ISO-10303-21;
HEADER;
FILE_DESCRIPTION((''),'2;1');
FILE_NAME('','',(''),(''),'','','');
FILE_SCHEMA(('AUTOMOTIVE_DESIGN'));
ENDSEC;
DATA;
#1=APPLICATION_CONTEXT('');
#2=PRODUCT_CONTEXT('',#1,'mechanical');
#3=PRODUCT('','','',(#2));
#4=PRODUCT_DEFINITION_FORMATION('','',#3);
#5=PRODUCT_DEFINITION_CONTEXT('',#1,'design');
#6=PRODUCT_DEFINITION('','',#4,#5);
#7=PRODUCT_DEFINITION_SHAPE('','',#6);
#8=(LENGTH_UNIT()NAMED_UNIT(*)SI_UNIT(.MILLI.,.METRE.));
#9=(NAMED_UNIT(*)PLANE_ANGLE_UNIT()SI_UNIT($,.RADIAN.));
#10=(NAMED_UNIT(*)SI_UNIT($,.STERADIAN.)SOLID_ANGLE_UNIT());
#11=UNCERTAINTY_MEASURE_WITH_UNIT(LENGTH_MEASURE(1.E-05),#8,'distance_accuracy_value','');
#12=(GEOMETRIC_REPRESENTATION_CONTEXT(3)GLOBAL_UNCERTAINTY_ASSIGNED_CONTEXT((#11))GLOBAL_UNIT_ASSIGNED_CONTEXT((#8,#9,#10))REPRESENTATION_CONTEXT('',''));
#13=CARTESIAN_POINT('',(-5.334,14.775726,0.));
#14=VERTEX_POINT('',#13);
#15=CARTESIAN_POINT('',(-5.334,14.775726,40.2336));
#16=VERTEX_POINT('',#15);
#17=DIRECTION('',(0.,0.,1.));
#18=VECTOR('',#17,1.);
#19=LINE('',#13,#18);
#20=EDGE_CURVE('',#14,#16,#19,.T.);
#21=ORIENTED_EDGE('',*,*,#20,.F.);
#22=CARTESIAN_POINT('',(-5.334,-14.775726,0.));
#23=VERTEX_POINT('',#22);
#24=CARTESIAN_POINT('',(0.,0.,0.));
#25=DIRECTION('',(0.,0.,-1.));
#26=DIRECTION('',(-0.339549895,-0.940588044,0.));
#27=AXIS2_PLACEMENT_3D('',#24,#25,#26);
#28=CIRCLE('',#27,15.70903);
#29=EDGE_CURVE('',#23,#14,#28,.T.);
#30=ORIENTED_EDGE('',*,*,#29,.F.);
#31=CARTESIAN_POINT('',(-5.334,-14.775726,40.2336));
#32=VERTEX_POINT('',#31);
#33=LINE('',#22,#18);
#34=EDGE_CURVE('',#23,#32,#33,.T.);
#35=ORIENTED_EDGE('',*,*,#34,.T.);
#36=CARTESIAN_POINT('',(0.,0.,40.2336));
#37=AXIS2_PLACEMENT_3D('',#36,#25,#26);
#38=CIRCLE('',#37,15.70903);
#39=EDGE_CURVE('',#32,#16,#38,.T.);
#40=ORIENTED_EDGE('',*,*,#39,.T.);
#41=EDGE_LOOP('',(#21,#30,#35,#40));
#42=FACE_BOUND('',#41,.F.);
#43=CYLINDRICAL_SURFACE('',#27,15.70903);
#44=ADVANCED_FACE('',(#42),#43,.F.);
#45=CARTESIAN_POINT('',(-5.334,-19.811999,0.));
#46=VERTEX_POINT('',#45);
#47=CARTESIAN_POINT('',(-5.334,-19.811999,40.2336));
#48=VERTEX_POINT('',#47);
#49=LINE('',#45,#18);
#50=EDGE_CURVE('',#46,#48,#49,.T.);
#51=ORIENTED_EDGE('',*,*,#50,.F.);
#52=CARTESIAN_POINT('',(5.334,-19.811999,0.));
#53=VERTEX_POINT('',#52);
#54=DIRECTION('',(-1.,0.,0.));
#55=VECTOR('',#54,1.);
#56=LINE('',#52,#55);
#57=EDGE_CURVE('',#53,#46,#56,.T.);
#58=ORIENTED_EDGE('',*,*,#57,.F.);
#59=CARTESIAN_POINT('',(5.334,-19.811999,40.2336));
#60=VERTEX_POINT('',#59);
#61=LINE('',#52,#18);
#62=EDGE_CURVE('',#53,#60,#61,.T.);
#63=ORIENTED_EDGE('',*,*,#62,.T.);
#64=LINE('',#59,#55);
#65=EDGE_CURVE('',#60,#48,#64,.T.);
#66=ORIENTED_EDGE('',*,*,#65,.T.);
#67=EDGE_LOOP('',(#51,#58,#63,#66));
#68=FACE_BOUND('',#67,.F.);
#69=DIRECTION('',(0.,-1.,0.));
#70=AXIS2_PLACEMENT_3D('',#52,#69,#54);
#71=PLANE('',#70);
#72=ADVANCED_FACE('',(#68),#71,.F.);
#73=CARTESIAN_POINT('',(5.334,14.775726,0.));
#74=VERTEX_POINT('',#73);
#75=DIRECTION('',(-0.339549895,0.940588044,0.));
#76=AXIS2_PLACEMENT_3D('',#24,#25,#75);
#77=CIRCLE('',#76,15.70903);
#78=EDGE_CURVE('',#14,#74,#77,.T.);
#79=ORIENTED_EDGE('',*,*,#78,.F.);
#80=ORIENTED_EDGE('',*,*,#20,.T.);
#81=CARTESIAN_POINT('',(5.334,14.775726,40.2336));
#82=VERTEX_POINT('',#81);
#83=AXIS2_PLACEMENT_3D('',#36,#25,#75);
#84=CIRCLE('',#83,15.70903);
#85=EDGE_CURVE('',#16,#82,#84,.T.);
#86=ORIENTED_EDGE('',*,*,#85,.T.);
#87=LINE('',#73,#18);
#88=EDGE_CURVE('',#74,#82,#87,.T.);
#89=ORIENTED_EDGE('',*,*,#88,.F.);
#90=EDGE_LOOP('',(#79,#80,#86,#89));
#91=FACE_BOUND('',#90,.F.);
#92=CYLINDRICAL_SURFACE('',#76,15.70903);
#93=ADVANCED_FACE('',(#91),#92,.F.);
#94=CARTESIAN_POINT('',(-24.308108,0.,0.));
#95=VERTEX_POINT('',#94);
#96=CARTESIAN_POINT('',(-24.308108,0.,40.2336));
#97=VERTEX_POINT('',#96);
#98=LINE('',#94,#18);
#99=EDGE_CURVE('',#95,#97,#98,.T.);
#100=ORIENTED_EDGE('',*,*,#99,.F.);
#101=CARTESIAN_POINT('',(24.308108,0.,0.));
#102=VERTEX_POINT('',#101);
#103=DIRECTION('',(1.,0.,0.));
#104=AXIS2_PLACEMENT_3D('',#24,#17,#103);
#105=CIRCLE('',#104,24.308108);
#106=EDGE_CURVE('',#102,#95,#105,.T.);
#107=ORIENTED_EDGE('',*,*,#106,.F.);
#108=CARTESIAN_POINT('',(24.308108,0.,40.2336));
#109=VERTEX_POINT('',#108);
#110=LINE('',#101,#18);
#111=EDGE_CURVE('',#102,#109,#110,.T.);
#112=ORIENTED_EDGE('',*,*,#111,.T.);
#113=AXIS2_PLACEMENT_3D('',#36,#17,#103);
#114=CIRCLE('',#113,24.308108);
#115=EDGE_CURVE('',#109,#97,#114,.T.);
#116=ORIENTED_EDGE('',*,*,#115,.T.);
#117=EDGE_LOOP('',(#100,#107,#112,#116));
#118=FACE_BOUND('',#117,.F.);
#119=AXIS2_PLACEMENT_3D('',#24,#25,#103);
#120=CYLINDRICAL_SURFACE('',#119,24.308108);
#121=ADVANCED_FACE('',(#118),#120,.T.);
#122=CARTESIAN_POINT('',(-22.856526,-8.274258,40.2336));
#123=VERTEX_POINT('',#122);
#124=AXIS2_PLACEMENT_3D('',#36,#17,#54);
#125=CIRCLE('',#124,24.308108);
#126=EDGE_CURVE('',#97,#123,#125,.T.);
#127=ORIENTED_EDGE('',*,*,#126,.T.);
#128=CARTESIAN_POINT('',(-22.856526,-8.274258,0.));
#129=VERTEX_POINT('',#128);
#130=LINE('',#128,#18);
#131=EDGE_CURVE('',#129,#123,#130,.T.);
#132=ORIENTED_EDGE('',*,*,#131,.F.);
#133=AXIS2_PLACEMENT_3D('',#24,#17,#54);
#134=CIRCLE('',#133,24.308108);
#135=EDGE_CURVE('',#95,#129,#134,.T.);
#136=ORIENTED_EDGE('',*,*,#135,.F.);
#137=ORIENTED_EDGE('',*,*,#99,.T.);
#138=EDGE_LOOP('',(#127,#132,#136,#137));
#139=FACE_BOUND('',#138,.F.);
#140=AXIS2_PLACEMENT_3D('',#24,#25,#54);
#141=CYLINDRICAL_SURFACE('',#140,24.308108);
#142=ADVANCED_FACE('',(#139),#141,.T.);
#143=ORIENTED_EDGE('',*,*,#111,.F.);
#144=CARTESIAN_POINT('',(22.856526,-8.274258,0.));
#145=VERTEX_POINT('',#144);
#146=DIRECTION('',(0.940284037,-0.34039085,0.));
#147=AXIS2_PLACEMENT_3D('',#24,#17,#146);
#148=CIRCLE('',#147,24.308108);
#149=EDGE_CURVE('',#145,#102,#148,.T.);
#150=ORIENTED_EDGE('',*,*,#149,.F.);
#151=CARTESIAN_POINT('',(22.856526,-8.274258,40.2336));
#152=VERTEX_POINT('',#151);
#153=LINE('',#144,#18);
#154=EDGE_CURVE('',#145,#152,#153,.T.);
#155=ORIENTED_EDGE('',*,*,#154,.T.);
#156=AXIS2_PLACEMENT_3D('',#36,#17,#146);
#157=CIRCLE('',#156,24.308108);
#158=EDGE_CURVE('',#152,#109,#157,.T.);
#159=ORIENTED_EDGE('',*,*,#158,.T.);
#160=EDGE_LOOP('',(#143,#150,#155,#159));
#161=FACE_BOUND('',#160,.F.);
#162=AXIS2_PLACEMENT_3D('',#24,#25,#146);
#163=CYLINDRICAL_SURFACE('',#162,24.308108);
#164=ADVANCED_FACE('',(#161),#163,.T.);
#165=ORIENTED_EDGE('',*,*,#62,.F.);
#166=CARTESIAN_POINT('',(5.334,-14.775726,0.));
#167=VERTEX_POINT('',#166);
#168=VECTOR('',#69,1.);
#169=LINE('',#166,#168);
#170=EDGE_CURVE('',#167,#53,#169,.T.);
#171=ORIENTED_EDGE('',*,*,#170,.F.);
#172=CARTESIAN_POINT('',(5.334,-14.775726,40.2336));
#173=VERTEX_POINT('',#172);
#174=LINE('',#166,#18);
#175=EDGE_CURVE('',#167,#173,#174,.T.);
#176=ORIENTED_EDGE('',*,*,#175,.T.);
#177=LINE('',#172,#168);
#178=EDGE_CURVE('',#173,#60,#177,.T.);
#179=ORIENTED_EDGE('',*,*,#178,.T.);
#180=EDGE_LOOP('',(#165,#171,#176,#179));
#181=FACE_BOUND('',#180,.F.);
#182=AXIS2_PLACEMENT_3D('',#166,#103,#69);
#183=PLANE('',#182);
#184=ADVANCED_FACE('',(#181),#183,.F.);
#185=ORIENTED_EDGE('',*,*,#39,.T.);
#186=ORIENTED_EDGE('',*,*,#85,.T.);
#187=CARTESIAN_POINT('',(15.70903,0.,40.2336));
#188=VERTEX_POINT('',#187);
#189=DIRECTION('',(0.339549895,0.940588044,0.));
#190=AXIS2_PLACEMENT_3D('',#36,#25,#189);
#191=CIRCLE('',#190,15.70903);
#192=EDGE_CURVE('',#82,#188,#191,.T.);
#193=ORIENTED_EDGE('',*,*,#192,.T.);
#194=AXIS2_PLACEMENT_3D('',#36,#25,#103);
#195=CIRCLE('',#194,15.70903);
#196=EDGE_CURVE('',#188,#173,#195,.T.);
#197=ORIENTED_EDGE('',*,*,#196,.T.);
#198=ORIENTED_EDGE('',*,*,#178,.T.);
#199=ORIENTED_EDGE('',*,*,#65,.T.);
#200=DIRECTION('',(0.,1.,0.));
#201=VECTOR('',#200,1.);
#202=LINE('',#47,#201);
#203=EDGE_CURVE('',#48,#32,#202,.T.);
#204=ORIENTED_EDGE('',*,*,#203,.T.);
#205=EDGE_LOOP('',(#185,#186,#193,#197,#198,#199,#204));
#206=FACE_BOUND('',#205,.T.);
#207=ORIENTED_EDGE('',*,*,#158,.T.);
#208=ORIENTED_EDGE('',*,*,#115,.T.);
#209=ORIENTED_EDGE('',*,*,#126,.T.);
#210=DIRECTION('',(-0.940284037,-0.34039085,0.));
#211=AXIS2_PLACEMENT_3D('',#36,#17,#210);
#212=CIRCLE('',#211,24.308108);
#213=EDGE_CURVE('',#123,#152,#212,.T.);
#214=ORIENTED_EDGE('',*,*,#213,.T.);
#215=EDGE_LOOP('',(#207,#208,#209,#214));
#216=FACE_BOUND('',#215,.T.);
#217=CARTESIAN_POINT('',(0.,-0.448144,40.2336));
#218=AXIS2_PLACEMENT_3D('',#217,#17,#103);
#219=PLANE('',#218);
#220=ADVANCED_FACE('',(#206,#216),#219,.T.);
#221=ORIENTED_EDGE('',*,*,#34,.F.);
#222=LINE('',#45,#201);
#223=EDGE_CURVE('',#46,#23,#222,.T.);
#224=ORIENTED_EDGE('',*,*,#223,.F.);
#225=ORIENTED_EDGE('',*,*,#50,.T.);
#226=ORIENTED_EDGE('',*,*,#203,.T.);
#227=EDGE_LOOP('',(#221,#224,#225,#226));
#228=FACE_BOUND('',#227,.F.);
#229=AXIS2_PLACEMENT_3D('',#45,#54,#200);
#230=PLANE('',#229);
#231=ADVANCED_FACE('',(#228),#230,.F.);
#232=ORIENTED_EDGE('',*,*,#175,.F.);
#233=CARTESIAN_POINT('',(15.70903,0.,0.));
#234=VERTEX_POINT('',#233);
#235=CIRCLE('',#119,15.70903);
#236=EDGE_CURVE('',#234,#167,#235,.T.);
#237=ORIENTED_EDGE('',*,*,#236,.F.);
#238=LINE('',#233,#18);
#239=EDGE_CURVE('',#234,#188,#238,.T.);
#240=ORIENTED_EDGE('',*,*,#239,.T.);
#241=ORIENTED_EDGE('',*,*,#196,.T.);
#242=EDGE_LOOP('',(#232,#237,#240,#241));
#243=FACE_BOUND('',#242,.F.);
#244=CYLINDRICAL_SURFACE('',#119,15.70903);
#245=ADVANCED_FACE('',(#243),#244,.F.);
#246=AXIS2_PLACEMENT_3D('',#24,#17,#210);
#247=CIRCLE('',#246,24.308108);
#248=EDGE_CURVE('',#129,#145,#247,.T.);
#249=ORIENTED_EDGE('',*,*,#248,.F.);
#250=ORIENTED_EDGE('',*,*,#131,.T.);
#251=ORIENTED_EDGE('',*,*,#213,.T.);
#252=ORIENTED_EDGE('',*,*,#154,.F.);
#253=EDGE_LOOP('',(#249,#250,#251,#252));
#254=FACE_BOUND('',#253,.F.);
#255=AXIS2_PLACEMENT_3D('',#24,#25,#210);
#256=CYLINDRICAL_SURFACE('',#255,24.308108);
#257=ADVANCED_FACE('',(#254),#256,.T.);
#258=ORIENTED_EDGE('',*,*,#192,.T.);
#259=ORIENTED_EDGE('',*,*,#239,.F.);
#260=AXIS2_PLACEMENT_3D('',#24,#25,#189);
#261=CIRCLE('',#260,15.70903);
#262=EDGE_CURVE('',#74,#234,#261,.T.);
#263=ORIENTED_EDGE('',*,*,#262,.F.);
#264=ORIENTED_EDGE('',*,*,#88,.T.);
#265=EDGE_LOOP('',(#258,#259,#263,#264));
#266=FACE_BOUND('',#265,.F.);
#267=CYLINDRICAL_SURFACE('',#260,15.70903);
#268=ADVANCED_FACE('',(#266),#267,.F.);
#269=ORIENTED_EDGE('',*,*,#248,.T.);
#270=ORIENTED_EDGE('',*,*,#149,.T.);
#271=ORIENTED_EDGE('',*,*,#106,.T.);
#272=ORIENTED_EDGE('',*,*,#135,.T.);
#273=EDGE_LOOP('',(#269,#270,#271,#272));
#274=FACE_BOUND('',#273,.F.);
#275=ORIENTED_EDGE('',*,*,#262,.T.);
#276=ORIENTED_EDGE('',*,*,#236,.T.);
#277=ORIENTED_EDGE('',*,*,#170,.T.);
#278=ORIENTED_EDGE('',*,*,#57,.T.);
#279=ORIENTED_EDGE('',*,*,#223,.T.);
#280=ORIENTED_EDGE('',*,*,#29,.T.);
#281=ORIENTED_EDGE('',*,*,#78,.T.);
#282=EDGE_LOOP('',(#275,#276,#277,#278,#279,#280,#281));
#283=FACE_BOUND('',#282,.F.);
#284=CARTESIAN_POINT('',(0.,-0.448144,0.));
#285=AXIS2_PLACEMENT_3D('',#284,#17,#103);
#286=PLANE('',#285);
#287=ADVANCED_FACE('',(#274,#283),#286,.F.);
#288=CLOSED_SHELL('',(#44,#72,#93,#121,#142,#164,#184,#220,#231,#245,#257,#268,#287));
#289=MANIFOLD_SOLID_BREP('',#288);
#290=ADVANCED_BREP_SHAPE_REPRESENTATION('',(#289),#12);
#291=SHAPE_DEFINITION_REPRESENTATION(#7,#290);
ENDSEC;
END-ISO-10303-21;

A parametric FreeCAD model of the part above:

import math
import FreeCAD as App
import Part
import Sketcher

V = App.Vector
Q = App.Units.Quantity

doc = App.newDocument("Part")
params = doc.addObject("Spreadsheet::Sheet", "Params")
for row, (alias, value) in enumerate([
    ("sketch1_width", "0.42 in"),
    ("pad1_length", "1.584 in"),
], start=1):
    params.set(f"A{row}", alias)
    params.set(f"B{row}", "=" + value)
    params.setAlias(f"B{row}", alias)

body = doc.addObject("PartDesign::Body", "Body")

# Sketch on XY plane
sketch1 = doc.addObject("Sketcher::SketchObject", "Sketch")
body.addObject(sketch1)
sketch1.AttachmentSupport = (doc.XY_Plane, [""])
sketch1.MapMode = "FlatFace"
sketch1.addGeometry(Part.ArcOfCircle(Part.Circle(V(0, 0, 0), V(0, 0, 1), 24.308108), math.radians(0), math.radians(180)), False)
sketch1.addGeometry(Part.ArcOfCircle(Part.Circle(V(0, 0, 0), V(0, 0, 1), 24.308108), math.radians(180), math.radians(199.900689)), False)
sketch1.addGeometry(Part.ArcOfCircle(Part.Circle(V(0, 0, 0), V(0, 0, 1), 24.308108), math.radians(-160.099311), math.radians(-19.900689)), False)
sketch1.addGeometry(Part.ArcOfCircle(Part.Circle(V(0, 0, 0), V(0, 0, 1), 24.308108), math.radians(-19.900689), math.radians(0)), False)
sketch1.addGeometry(Part.ArcOfCircle(Part.Circle(V(0, 0, 0), V(0, 0, 1), 15.70903), math.radians(109.849454), math.radians(250.150546)), False)
sketch1.addGeometry(Part.ArcOfCircle(Part.Circle(V(0, 0, 0), V(0, 0, 1), 15.70903), math.radians(70.150546), math.radians(109.849454)), False)
sketch1.addGeometry(Part.ArcOfCircle(Part.Circle(V(0, 0, 0), V(0, 0, 1), 15.70903), math.radians(0), math.radians(70.150546)), False)
sketch1.addGeometry(Part.ArcOfCircle(Part.Circle(V(0, 0, 0), V(0, 0, 1), 15.70903), math.radians(-70.150546), math.radians(0)), False)
sketch1.addGeometry(Part.LineSegment(V(5.334, -14.775726, 0), V(5.334, -19.811999, 0)), False)
sketch1.addGeometry(Part.LineSegment(V(5.334, -19.811999, 0), V(-5.334, -19.811999, 0)), False)
sketch1.addGeometry(Part.LineSegment(V(-5.334, -19.811999, 0), V(-5.334, -14.775726, 0)), False)
sketch1.addConstraint(Sketcher.Constraint("Tangent", 0, 2, 1, 1))
sketch1.addConstraint(Sketcher.Constraint("Tangent", 1, 2, 2, 1))
sketch1.addConstraint(Sketcher.Constraint("Tangent", 2, 2, 3, 1))
sketch1.addConstraint(Sketcher.Constraint("Tangent", 3, 2, 0, 1))
sketch1.addConstraint(Sketcher.Constraint("Tangent", 4, 1, 5, 2))
sketch1.addConstraint(Sketcher.Constraint("Tangent", 5, 1, 6, 2))
sketch1.addConstraint(Sketcher.Constraint("Tangent", 6, 1, 7, 2))
sketch1.addConstraint(Sketcher.Constraint("Coincident", 7, 1, 8, 1))
sketch1.addConstraint(Sketcher.Constraint("Coincident", 8, 2, 9, 1))
sketch1.addConstraint(Sketcher.Constraint("Coincident", 9, 2, 10, 1))
sketch1.addConstraint(Sketcher.Constraint("Coincident", 10, 2, 4, 2))
sketch1.addConstraint(Sketcher.Constraint("Vertical", 8))
sketch1.addConstraint(Sketcher.Constraint("Horizontal", 9))
sketch1.addConstraint(Sketcher.Constraint("Vertical", 10))
sketch1.addConstraint(Sketcher.Constraint("Coincident", 0, 3, -1, 1))
sketch1.addConstraint(Sketcher.Constraint("Coincident", 4, 3, -1, 1))
sketch1.addConstraint(Sketcher.Constraint("Coincident", 6, 3, -1, 1))
sketch1.addConstraint(Sketcher.Constraint("Equal", 0, 1))
sketch1.addConstraint(Sketcher.Constraint("Equal", 6, 7))
sketch1.addConstraint(Sketcher.Constraint("PointOnObject", 0, 2, -1))
sketch1.addConstraint(Sketcher.Constraint("PointOnObject", 3, 2, -1))
sketch1.addConstraint(Sketcher.Constraint("PointOnObject", 6, 1, -1))
sketch1.addConstraint(Sketcher.Constraint("Horizontal", 1, 2, 2, 2))
sketch1.addConstraint(Sketcher.Constraint("Horizontal", 4, 1, 5, 1))
sketch1.addConstraint(Sketcher.Constraint("Horizontal", 7, 1, 10, 2))
sketch1.addConstraint(Sketcher.Constraint("Vertical", 5, 1, 7, 1))
sketch1.addConstraint(Sketcher.Constraint("DistanceX", 9, 2, 9, 1, Q("0.42 in")))
sketch1.addConstraint(Sketcher.Constraint("DistanceY", 8, 2, -1, 1, Q("0.78 in")))
sketch1.addConstraint(Sketcher.Constraint("Radius", 0, 24.308108))
sketch1.addConstraint(Sketcher.Constraint("Radius", 4, 15.70903))
sketch1.addConstraint(Sketcher.Constraint("DistanceX", 1, 2, -1, 1, 22.856526))
sketch1.setExpression("Constraints[26]", "Params.sketch1_width")
pad1 = doc.addObject("PartDesign::Pad", "Pad")
body.addObject(pad1)
pad1.Profile = sketch1
pad1.setExpression("Length", "Params.pad1_length")

doc.recompute()
